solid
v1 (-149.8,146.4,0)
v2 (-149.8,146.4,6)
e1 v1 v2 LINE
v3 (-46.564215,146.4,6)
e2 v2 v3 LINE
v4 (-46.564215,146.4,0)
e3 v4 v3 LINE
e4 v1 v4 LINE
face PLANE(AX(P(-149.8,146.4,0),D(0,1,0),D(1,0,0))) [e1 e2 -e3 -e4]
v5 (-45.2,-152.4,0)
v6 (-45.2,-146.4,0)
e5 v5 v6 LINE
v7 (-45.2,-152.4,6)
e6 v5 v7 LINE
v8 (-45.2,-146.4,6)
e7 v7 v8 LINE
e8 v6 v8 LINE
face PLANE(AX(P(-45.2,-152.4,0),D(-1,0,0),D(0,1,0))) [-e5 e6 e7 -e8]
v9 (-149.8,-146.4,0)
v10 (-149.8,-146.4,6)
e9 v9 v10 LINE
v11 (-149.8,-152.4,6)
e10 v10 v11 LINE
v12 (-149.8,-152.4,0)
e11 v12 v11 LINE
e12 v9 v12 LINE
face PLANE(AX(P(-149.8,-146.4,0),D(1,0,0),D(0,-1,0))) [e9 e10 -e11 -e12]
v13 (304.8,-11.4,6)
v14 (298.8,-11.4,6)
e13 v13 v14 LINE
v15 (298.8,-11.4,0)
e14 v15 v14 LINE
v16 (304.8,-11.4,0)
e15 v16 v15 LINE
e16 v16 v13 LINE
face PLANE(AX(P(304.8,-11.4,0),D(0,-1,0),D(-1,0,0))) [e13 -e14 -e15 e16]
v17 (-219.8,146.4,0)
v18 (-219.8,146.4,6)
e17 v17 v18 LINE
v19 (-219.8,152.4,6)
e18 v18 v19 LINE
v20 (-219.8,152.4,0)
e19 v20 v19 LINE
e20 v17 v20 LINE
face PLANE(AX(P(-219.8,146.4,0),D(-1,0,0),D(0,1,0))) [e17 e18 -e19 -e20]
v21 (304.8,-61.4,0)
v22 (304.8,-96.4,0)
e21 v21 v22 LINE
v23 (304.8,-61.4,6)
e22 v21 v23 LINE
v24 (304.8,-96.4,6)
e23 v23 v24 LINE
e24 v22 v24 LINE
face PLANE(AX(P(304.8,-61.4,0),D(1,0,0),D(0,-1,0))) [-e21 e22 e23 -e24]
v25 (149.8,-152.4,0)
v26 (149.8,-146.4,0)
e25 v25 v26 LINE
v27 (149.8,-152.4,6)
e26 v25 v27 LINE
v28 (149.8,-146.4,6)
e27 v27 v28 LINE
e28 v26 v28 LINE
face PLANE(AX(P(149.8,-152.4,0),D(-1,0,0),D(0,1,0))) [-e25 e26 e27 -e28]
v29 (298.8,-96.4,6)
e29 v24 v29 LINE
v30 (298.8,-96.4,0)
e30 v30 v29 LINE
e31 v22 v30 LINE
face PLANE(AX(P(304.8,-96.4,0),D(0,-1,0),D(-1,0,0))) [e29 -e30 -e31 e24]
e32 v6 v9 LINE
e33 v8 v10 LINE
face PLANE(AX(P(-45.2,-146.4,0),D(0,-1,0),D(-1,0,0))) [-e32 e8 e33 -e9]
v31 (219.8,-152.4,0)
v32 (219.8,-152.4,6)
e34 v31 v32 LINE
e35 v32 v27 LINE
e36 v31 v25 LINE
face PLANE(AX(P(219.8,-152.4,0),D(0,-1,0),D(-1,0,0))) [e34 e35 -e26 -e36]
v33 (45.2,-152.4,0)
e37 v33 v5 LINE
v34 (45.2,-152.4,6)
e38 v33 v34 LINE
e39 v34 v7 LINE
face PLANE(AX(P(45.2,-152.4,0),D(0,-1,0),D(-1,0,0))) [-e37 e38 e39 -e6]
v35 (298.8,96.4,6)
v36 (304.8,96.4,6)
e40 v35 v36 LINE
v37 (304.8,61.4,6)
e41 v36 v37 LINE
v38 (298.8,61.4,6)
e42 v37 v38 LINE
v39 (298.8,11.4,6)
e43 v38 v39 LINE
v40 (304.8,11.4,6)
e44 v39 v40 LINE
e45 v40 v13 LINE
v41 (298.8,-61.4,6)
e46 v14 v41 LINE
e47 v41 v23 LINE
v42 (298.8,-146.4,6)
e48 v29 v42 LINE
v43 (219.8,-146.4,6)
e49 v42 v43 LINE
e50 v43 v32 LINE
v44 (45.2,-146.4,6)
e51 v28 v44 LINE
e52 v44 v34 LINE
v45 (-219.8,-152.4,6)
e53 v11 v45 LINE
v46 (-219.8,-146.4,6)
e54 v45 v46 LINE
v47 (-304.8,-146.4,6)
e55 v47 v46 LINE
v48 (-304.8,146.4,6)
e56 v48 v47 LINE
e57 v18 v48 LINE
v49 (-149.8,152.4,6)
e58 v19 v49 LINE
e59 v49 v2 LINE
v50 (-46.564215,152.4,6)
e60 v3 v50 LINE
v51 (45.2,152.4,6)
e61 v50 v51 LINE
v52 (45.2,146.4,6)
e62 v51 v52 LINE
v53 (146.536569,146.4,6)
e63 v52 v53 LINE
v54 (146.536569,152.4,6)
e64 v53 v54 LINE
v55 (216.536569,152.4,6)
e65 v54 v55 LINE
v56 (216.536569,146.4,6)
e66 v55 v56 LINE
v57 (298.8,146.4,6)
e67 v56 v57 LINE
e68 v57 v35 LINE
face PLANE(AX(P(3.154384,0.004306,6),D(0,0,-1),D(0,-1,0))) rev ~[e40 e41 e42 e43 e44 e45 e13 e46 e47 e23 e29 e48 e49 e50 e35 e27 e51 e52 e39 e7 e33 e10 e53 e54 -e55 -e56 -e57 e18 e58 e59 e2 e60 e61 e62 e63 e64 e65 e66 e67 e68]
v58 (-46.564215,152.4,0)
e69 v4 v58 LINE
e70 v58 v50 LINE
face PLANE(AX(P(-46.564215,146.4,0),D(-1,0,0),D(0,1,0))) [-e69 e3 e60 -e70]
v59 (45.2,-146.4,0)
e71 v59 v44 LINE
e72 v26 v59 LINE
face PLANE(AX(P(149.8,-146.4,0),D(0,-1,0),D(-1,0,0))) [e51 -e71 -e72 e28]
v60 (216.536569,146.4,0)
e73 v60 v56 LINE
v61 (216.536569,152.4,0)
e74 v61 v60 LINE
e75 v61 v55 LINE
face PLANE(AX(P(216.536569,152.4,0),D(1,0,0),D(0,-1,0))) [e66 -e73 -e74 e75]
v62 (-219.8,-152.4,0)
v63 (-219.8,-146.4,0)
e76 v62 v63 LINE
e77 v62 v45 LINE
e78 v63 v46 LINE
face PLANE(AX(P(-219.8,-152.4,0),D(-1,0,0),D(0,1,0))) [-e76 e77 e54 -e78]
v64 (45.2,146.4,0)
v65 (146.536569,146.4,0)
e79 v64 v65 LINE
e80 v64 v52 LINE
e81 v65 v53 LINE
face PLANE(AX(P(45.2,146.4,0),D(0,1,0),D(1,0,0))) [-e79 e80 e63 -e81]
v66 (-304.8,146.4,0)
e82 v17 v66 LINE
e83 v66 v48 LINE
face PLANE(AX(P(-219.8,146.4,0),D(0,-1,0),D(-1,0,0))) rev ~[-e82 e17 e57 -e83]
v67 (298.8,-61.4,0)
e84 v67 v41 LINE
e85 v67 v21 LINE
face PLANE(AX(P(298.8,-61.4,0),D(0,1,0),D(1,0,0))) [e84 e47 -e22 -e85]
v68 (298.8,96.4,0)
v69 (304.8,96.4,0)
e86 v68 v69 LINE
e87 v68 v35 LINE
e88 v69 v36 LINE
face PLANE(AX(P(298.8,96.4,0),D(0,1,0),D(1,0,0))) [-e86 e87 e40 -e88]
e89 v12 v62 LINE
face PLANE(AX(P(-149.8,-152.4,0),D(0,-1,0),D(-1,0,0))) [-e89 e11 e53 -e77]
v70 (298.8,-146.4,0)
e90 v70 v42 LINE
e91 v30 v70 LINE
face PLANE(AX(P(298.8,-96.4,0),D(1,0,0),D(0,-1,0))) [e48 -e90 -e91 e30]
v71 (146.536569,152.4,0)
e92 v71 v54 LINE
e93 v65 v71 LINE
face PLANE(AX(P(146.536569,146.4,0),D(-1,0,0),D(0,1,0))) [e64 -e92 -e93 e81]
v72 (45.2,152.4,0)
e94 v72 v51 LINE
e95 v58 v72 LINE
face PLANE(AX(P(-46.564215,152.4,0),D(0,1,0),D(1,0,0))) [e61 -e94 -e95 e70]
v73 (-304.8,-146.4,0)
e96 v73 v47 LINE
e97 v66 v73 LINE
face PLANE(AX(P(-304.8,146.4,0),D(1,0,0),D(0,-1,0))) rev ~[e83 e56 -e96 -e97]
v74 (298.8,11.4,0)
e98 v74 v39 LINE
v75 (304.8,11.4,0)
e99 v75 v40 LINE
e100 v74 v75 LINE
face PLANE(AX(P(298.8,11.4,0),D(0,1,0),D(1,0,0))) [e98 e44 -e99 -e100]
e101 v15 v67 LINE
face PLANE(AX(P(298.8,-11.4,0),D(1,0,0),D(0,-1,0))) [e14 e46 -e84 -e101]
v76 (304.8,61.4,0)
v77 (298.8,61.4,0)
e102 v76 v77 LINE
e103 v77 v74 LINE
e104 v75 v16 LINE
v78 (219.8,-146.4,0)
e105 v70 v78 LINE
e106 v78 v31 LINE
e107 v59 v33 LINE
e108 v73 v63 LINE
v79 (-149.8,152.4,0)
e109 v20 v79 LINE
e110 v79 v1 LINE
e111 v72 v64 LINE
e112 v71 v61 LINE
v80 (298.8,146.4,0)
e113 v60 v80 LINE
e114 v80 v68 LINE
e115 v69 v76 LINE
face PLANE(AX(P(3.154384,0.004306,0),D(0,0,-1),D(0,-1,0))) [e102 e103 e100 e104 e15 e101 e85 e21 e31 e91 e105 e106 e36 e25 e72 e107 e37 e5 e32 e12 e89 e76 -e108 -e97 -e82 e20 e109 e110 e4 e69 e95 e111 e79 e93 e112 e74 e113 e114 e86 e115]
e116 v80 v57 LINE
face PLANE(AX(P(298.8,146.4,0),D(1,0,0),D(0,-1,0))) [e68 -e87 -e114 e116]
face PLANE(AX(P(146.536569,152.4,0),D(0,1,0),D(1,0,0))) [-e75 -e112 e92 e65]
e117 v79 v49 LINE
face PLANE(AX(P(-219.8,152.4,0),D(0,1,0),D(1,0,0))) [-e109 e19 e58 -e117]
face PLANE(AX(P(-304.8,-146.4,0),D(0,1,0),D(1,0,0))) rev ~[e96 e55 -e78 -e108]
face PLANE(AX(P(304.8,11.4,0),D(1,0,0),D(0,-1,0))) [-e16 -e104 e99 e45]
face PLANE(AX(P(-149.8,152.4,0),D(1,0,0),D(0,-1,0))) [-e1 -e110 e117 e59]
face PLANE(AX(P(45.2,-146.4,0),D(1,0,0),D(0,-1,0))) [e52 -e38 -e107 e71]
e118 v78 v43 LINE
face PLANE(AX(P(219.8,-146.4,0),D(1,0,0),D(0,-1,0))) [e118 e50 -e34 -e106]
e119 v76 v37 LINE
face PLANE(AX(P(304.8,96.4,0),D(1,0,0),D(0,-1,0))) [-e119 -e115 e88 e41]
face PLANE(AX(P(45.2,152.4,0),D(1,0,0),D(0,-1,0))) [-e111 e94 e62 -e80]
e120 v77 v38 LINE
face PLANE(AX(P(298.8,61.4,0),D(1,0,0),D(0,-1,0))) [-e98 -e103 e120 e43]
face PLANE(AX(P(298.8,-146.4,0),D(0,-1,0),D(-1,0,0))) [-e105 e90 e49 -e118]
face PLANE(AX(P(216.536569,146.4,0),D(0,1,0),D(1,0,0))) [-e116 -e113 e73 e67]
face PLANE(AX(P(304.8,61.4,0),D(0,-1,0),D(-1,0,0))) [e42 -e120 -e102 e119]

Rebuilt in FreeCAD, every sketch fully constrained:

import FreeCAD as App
import Part
import Sketcher

doc = App.newDocument("Part")
body = doc.addObject("PartDesign::Body", "Body")

# Sketch on XY plane
sketch1 = body.newObject("Sketcher::SketchObject", "Sketch")
sketch1.AttachmentSupport = (doc.getObject("XY_Plane"), [""])
sketch1.MapMode = "FlatFace"
sketch1.addGeometry([
    Part.LineSegment(App.Vector(-304.8, -146.4, 0), App.Vector(-219.8, -146.4, 0)),  # 0
    Part.LineSegment(App.Vector(-219.8, -146.4, 0), App.Vector(-219.8, -152.4, 0)),  # 1
    Part.LineSegment(App.Vector(-219.8, -152.4, 0), App.Vector(-149.8, -152.4, 0)),  # 2
    Part.LineSegment(App.Vector(-149.8, -152.4, 0), App.Vector(-149.8, -146.4, 0)),  # 3
    Part.LineSegment(App.Vector(-149.8, -146.4, 0), App.Vector(-45.2, -146.4, 0)),  # 4
    Part.LineSegment(App.Vector(-45.2, -146.4, 0), App.Vector(-45.2, -152.4, 0)),  # 5
    Part.LineSegment(App.Vector(-45.2, -152.4, 0), App.Vector(45.2, -152.4, 0)),  # 6
    Part.LineSegment(App.Vector(45.2, -152.4, 0), App.Vector(45.2, -146.4, 0)),  # 7
    Part.LineSegment(App.Vector(45.2, -146.4, 0), App.Vector(149.8, -146.4, 0)),  # 8
    Part.LineSegment(App.Vector(149.8, -146.4, 0), App.Vector(149.8, -152.4, 0)),  # 9
    Part.LineSegment(App.Vector(149.8, -152.4, 0), App.Vector(219.8, -152.4, 0)),  # 10
    Part.LineSegment(App.Vector(219.8, -152.4, 0), App.Vector(219.8, -146.4, 0)),  # 11
    Part.LineSegment(App.Vector(219.8, -146.4, 0), App.Vector(298.8, -146.4, 0)),  # 12
    Part.LineSegment(App.Vector(298.8, -146.4, 0), App.Vector(298.8, -96.4, 0)),  # 13
    Part.LineSegment(App.Vector(298.8, -96.4, 0), App.Vector(304.8, -96.4, 0)),  # 14
    Part.LineSegment(App.Vector(304.8, -96.4, 0), App.Vector(304.8, -61.4, 0)),  # 15
    Part.LineSegment(App.Vector(304.8, -61.4, 0), App.Vector(298.8, -61.4, 0)),  # 16
    Part.LineSegment(App.Vector(298.8, -61.4, 0), App.Vector(298.8, -11.4, 0)),  # 17
    Part.LineSegment(App.Vector(298.8, -11.4, 0), App.Vector(304.8, -11.4, 0)),  # 18
    Part.LineSegment(App.Vector(304.8, -11.4, 0), App.Vector(304.8, 11.4, 0)),  # 19
    Part.LineSegment(App.Vector(304.8, 11.4, 0), App.Vector(298.8, 11.4, 0)),  # 20
    Part.LineSegment(App.Vector(298.8, 11.4, 0), App.Vector(298.8, 61.4, 0)),  # 21
    Part.LineSegment(App.Vector(298.8, 61.4, 0), App.Vector(304.8, 61.4, 0)),  # 22
    Part.LineSegment(App.Vector(304.8, 61.4, 0), App.Vector(304.8, 96.4, 0)),  # 23
    Part.LineSegment(App.Vector(304.8, 96.4, 0), App.Vector(298.8, 96.4, 0)),  # 24
    Part.LineSegment(App.Vector(298.8, 96.4, 0), App.Vector(298.8, 146.4, 0)),  # 25
    Part.LineSegment(App.Vector(298.8, 146.4, 0), App.Vector(216.536569, 146.4, 0)),  # 26
    Part.LineSegment(App.Vector(216.536569, 146.4, 0), App.Vector(216.536569, 152.4, 0)),  # 27
    Part.LineSegment(App.Vector(216.536569, 152.4, 0), App.Vector(146.536569, 152.4, 0)),  # 28
    Part.LineSegment(App.Vector(146.536569, 152.4, 0), App.Vector(146.536569, 146.4, 0)),  # 29
    Part.LineSegment(App.Vector(146.536569, 146.4, 0), App.Vector(45.2, 146.4, 0)),  # 30
    Part.LineSegment(App.Vector(45.2, 146.4, 0), App.Vector(45.2, 152.4, 0)),  # 31
    Part.LineSegment(App.Vector(45.2, 152.4, 0), App.Vector(-46.564215, 152.4, 0)),  # 32
    Part.LineSegment(App.Vector(-46.564215, 152.4, 0), App.Vector(-46.564215, 146.4, 0)),  # 33
    Part.LineSegment(App.Vector(-46.564215, 146.4, 0), App.Vector(-149.8, 146.4, 0)),  # 34
    Part.LineSegment(App.Vector(-149.8, 146.4, 0), App.Vector(-149.8, 152.4, 0)),  # 35
    Part.LineSegment(App.Vector(-149.8, 152.4, 0), App.Vector(-219.8, 152.4, 0)),  # 36
    Part.LineSegment(App.Vector(-219.8, 152.4, 0), App.Vector(-219.8, 146.4, 0)),  # 37
    Part.LineSegment(App.Vector(-219.8, 146.4, 0), App.Vector(-304.8, 146.4, 0)),  # 38
    Part.LineSegment(App.Vector(-304.8, 146.4, 0), App.Vector(-304.8, -146.4, 0)),  # 39
], False)
sketch1.addConstraint([
    Sketcher.Constraint("Coincident", 0, 2, 1, 1),
    Sketcher.Constraint("Coincident", 1, 2, 2, 1),
    Sketcher.Constraint("Coincident", 2, 2, 3, 1),
    Sketcher.Constraint("Coincident", 3, 2, 4, 1),
    Sketcher.Constraint("Coincident", 4, 2, 5, 1),
    Sketcher.Constraint("Coincident", 5, 2, 6, 1),
    Sketcher.Constraint("Coincident", 6, 2, 7, 1),
    Sketcher.Constraint("Coincident", 7, 2, 8, 1),
    Sketcher.Constraint("Coincident", 8, 2, 9, 1),
    Sketcher.Constraint("Coincident", 9, 2, 10, 1),
    Sketcher.Constraint("Coincident", 10, 2, 11, 1),
    Sketcher.Constraint("Coincident", 11, 2, 12, 1),
    Sketcher.Constraint("Coincident", 12, 2, 13, 1),
    Sketcher.Constraint("Coincident", 13, 2, 14, 1),
    Sketcher.Constraint("Coincident", 14, 2, 15, 1),
    Sketcher.Constraint("Coincident", 15, 2, 16, 1),
    Sketcher.Constraint("Coincident", 16, 2, 17, 1),
    Sketcher.Constraint("Coincident", 17, 2, 18, 1),
    Sketcher.Constraint("Coincident", 18, 2, 19, 1),
    Sketcher.Constraint("Coincident", 19, 2, 20, 1),
    Sketcher.Constraint("Coincident", 20, 2, 21, 1),
    Sketcher.Constraint("Coincident", 21, 2, 22, 1),
    Sketcher.Constraint("Coincident", 22, 2, 23, 1),
    Sketcher.Constraint("Coincident", 23, 2, 24, 1),
    Sketcher.Constraint("Coincident", 24, 2, 25, 1),
    Sketcher.Constraint("Coincident", 25, 2, 26, 1),
    Sketcher.Constraint("Coincident", 26, 2, 27, 1),
    Sketcher.Constraint("Coincident", 27, 2, 28, 1),
    Sketcher.Constraint("Coincident", 28, 2, 29, 1),
    Sketcher.Constraint("Coincident", 29, 2, 30, 1),
    Sketcher.Constraint("Coincident", 30, 2, 31, 1),
    Sketcher.Constraint("Coincident", 31, 2, 32, 1),
    Sketcher.Constraint("Coincident", 32, 2, 33, 1),
    Sketcher.Constraint("Coincident", 33, 2, 34, 1),
    Sketcher.Constraint("Coincident", 34, 2, 35, 1),
    Sketcher.Constraint("Coincident", 35, 2, 36, 1),
    Sketcher.Constraint("Coincident", 36, 2, 37, 1),
    Sketcher.Constraint("Coincident", 37, 2, 38, 1),
    Sketcher.Constraint("Coincident", 38, 2, 39, 1),
    Sketcher.Constraint("Coincident", 39, 2, 0, 1),
    Sketcher.Constraint("Horizontal", 0),
    Sketcher.Constraint("Vertical", 1),
    Sketcher.Constraint("Horizontal", 2),
    Sketcher.Constraint("Vertical", 3),
    Sketcher.Constraint("Horizontal", 4),
    Sketcher.Constraint("Vertical", 5),
    Sketcher.Constraint("Horizontal", 6),
    Sketcher.Constraint("Vertical", 7),
    Sketcher.Constraint("Horizontal", 8),
    Sketcher.Constraint("Vertical", 9),
    Sketcher.Constraint("Horizontal", 10),
    Sketcher.Constraint("Vertical", 11),
    Sketcher.Constraint("Horizontal", 12),
    Sketcher.Constraint("Vertical", 13),
    Sketcher.Constraint("Horizontal", 14),
    Sketcher.Constraint("Vertical", 15),
    Sketcher.Constraint("Horizontal", 16),
    Sketcher.Constraint("Vertical", 17),
    Sketcher.Constraint("Horizontal", 18),
    Sketcher.Constraint("Vertical", 19),
    Sketcher.Constraint("Horizontal", 20),
    Sketcher.Constraint("Vertical", 21),
    Sketcher.Constraint("Horizontal", 22),
    Sketcher.Constraint("Vertical", 23),
    Sketcher.Constraint("Horizontal", 24),
    Sketcher.Constraint("Vertical", 25),
    Sketcher.Constraint("Horizontal", 26),
    Sketcher.Constraint("Vertical", 27),
    Sketcher.Constraint("Horizontal", 28),
    Sketcher.Constraint("Vertical", 29),
    Sketcher.Constraint("Horizontal", 30),
    Sketcher.Constraint("Vertical", 31),
    Sketcher.Constraint("Horizontal", 32),
    Sketcher.Constraint("Vertical", 33),
    Sketcher.Constraint("Horizontal", 34),
    Sketcher.Constraint("Vertical", 35),
    Sketcher.Constraint("Horizontal", 36),
    Sketcher.Constraint("Vertical", 37),
    Sketcher.Constraint("Horizontal", 38),
    Sketcher.Constraint("Vertical", 39),
    Sketcher.Constraint("Symmetric", 4, 2, 30, 2, -1, 1),
    Sketcher.Constraint("Symmetric", 8, 2, 34, 2, -1, 1),
    Sketcher.Constraint("Symmetric", 10, 2, 36, 2, -1, 1),
    Sketcher.Constraint("Symmetric", 4, 2, 7, 2, -2),
    Sketcher.Constraint("Symmetric", 2, 2, 9, 2, -2),
    Sketcher.Constraint("Symmetric", 0, 2, 11, 2, -2),
    Sketcher.Constraint("Symmetric", 17, 2, 20, 2, -1),
    Sketcher.Constraint("Symmetric", 15, 2, 22, 2, -1),
    Sketcher.Constraint("Symmetric", 13, 2, 24, 2, -1),
    Sketcher.Constraint("Horizontal", 0, 2, 3, 2),
    Sketcher.Constraint("Horizontal", 2, 2, 5, 2),
    Sketcher.Constraint("Horizontal", 26, 2, 29, 2),
    Sketcher.Constraint("Horizontal", 28, 2, 31, 2),
    Sketcher.Constraint("Horizontal", 32, 2, 35, 2),
    Sketcher.Constraint("Horizontal", 34, 2, 37, 2),
    Sketcher.Constraint("Vertical", 13, 2, 16, 2),
    Sketcher.Constraint("Vertical", 15, 2, 18, 2),
    Sketcher.Constraint("Equal", 10, 28),
    Sketcher.Constraint("Equal", 24, 1),
    Sketcher.Constraint("Equal", 13, 17),
    Sketcher.Constraint("DistanceX", 0, 1, 0, 2, 85.0),
    Sketcher.Constraint("DistanceX", 2, 1, 2, 2, 70.0),
    Sketcher.Constraint("DistanceX", 12, 1, 12, 2, 79.0),
    Sketcher.Constraint("DistanceX", 14, 1, 14, 2, 6.0),
    Sketcher.Constraint("DistanceY", 13, 1, 13, 2, 50.0),
    Sketcher.Constraint("DistanceY", 15, 1, 15, 2, 35.0),
    Sketcher.Constraint("DistanceX", 4, 1, 4, 2, 104.6),
    Sketcher.Constraint("DistanceX", 6, 1, 6, 2, 90.4),
    Sketcher.Constraint("DistanceY", 19, 1, 19, 2, 22.8),
    Sketcher.Constraint("DistanceX", 26, 2, 26, 1, 82.263431),
    Sketcher.Constraint("DistanceX", 32, 2, 32, 1, 91.764215),
])
pad1 = body.newObject("PartDesign::Pad", "Pad")
pad1.Profile = sketch1
pad1.Length = 6

doc.recompute()
